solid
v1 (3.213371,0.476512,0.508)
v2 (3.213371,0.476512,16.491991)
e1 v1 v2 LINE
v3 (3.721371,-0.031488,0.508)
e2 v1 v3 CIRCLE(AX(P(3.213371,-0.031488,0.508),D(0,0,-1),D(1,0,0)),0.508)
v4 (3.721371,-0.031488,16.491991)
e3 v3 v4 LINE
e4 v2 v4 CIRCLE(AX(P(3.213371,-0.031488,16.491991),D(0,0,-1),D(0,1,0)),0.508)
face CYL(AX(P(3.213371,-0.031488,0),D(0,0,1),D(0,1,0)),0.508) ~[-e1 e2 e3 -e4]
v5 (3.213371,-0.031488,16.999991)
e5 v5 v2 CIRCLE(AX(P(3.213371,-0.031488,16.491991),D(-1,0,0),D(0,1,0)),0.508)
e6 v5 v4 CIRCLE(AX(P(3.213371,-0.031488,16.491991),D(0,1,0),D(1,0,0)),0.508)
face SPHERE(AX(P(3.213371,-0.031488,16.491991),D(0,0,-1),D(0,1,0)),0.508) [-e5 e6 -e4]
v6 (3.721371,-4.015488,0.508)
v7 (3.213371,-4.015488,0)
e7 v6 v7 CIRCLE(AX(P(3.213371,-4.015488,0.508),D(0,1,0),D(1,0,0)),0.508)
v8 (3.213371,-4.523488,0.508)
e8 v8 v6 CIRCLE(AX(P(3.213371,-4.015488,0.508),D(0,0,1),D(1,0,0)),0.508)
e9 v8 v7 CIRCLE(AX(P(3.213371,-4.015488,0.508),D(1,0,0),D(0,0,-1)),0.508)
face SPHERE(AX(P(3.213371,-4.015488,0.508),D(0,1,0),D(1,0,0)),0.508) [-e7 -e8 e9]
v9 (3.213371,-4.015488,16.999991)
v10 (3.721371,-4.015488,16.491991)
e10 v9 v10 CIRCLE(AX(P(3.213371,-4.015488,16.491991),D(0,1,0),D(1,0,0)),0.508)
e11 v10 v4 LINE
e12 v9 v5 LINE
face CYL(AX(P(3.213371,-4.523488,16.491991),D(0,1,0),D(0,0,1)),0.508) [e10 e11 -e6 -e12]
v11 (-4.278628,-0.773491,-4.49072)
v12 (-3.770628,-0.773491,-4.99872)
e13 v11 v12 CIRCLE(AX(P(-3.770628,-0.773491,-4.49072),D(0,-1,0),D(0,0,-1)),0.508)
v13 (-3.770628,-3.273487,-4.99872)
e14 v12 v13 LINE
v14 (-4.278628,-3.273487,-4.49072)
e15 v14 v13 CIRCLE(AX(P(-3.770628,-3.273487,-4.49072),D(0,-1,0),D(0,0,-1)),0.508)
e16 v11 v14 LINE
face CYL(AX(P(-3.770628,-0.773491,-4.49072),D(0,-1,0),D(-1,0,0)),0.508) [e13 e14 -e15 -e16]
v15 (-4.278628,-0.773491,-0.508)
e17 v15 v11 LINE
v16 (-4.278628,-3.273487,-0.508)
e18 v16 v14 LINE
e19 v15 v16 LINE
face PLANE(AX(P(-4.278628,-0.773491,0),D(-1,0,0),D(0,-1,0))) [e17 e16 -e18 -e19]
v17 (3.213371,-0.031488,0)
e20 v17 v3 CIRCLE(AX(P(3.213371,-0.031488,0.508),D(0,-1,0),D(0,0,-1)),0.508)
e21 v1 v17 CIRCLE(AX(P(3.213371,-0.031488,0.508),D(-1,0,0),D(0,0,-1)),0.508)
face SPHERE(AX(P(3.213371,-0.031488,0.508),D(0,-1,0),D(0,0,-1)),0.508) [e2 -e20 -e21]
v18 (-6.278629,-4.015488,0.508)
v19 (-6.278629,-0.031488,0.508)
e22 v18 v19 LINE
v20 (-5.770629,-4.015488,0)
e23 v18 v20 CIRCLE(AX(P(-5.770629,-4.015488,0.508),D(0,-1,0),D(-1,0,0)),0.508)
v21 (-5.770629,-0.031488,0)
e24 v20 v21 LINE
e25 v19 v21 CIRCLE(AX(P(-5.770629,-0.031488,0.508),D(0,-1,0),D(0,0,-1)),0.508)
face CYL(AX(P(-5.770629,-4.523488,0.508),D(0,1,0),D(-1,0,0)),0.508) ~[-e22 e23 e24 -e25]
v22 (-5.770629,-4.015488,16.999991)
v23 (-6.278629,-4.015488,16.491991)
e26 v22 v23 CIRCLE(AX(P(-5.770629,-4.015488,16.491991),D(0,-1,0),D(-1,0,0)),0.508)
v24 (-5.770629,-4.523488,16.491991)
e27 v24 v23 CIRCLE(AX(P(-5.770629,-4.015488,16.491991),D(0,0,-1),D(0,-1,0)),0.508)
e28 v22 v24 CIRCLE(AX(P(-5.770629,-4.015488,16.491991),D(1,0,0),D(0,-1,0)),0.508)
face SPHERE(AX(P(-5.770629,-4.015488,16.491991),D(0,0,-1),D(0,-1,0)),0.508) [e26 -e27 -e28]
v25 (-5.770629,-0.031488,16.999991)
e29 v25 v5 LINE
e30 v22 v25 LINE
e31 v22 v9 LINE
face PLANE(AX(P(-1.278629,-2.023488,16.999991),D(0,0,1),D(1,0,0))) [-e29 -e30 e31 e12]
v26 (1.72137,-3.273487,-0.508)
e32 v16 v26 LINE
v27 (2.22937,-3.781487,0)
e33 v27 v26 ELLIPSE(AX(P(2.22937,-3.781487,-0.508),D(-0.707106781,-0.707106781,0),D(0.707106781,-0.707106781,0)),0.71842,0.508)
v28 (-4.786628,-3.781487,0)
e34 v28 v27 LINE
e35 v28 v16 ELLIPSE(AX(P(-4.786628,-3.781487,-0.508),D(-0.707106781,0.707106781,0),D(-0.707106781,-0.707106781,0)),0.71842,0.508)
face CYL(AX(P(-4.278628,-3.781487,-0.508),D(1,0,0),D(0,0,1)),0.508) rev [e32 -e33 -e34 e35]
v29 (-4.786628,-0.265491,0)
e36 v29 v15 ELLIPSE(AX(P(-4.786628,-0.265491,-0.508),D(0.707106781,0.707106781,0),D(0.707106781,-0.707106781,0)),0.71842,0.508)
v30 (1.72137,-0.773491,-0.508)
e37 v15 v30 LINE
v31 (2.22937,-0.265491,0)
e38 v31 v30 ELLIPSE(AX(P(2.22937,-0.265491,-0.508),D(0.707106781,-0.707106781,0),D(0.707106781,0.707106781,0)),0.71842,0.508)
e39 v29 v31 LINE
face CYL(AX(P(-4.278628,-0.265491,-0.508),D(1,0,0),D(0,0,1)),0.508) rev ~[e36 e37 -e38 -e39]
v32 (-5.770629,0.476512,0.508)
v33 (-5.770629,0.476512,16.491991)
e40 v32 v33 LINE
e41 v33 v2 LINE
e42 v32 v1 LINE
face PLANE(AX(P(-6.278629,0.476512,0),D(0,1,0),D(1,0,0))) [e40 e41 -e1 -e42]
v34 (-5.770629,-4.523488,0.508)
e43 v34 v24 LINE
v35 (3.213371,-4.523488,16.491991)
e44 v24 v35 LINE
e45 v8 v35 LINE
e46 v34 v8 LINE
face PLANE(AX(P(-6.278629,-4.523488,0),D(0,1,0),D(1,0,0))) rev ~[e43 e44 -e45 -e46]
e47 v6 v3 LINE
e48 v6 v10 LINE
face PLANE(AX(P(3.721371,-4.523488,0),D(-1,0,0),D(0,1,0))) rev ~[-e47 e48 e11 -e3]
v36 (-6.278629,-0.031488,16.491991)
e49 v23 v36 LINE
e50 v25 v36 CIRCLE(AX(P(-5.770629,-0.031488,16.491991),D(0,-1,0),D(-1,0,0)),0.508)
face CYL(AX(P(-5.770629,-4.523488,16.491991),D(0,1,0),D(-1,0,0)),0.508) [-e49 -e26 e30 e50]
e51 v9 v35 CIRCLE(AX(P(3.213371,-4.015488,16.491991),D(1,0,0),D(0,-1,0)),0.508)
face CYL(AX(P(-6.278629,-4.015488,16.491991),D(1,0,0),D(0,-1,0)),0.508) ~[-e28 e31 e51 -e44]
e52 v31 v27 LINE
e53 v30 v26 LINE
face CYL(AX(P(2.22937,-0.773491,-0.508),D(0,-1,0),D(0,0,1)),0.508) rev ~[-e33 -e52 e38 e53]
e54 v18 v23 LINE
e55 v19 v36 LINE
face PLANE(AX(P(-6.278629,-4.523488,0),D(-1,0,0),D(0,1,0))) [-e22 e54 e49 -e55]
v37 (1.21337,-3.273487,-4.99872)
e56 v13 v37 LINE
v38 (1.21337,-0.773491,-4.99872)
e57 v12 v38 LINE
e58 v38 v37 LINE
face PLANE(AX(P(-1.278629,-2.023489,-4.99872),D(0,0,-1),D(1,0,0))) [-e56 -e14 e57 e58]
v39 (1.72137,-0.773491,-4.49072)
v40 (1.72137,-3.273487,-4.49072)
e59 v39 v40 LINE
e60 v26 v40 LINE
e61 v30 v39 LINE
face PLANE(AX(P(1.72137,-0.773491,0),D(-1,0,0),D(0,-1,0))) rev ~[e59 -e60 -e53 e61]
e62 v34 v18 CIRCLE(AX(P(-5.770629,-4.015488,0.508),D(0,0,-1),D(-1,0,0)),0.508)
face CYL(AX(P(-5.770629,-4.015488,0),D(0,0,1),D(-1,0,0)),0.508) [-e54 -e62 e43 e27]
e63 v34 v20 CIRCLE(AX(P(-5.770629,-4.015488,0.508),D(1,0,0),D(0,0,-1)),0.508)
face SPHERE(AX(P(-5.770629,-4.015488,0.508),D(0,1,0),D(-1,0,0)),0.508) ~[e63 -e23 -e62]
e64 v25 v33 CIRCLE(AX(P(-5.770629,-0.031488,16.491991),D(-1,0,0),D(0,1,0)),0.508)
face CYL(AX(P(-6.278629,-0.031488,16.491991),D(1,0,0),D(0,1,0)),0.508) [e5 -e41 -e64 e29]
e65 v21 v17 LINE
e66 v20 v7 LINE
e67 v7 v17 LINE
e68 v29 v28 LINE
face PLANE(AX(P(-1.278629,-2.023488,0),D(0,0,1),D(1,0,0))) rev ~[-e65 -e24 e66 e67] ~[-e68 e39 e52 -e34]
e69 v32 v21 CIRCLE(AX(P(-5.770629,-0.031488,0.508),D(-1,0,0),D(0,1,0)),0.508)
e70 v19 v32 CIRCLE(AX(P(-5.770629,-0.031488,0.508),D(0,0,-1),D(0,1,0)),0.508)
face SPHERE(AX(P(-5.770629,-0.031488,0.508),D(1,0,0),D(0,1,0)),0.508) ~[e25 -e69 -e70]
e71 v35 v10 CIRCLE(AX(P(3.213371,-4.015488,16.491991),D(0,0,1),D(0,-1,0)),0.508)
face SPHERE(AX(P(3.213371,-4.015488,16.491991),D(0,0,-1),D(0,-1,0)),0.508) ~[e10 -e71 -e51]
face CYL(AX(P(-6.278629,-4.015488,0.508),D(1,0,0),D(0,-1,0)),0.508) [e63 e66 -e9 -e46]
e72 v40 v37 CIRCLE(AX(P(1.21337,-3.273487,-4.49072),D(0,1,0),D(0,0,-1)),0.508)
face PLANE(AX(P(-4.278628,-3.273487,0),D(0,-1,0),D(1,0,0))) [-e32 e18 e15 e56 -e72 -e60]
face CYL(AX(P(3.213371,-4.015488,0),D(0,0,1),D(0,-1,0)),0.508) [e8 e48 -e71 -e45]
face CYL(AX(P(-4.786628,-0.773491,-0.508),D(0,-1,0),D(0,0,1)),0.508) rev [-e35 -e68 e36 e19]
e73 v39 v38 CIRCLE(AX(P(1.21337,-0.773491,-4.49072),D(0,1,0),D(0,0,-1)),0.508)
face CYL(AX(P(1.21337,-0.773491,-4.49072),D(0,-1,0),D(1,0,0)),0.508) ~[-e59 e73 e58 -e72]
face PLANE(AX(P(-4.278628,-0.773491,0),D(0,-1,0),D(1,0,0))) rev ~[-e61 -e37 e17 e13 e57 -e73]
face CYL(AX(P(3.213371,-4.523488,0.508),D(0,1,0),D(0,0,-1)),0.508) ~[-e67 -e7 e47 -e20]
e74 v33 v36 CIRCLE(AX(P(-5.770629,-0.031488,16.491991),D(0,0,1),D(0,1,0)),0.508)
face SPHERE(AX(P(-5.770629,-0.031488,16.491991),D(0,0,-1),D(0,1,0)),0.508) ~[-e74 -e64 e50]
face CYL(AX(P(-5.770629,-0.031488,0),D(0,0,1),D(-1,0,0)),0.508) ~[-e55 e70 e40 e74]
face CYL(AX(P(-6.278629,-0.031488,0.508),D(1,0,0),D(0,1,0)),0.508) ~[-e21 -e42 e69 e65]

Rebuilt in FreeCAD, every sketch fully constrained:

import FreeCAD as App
import Part
import Sketcher
Q = App.Units.Quantity


def edges_at(feature, points):
    """Names of the edges that pass closest to the given points."""
    edges = feature.Shape.Edges
    near = lambda p: min(range(len(edges)), key=lambda i: edges[i].distToShape(Part.Vertex(*p))[0])
    return sorted({f"Edge{near(p) + 1}" for p in points})


def add_polygon(sketch, points):
    """Adds a closed chain of lines whose ends are joined by coincident constraints."""
    first, n = sketch.GeometryCount, len(points)
    for a, b in zip(points, points[1:] + points[:1]):
        sketch.addGeometry(Part.LineSegment(App.Vector(*a, 0), App.Vector(*b, 0)), False)
    for i in range(n):
        sketch.addConstraint(Sketcher.Constraint("Coincident", first + i, 2, first + (i + 1) % n, 1))

doc = App.newDocument("Part")
params = doc.addObject("Spreadsheet::Sheet", "Params")
for row, (alias, value) in enumerate([
    ("sketch1_width", "10 mm"),
    ("sketch1_height", "5 mm"),
    ("pad1_length", "16.999991 mm"),
    ("sketch2_width", "5.999998 mm"),
    ("pad2_length", "4.99872 mm"),
    ("fillet_radius", "0.508 mm"),
], start=1):
    params.set(f"A{row}", alias)
    params.set(f"B{row}", "=" + value)
    params.setAlias(f"B{row}", alias)

body = doc.addObject("PartDesign::Body", "Body")

sketch1 = doc.addObject("Sketcher::SketchObject", "Sketch")
body.addObject(sketch1)
sketch1.AttachmentSupport = (doc.XY_Plane, [""])
sketch1.MapMode = "FlatFace"
add_polygon(sketch1, [(-6, 0), (-6, -5), (4, -5), (4, 0)])
sketch1.addConstraint([
    Sketcher.Constraint("Vertical", 0),
    Sketcher.Constraint("Horizontal", 1),
    Sketcher.Constraint("Vertical", 2),
    Sketcher.Constraint("Horizontal", 3),
    Sketcher.Constraint("DistanceX", 1, 1, 1, 2, Q("10 mm")),
    Sketcher.Constraint("DistanceY", 0, 2, 0, 1, Q("5 mm")),
    Sketcher.Constraint("DistanceX", 0, 2, -1, 1, Q("6.278629 mm")),
    Sketcher.Constraint("DistanceY", 0, 2, -1, 1, Q("4.523488 mm")),
])
sketch1.setExpression("Constraints[8]", "Params.sketch1_width")
sketch1.setExpression("Constraints[9]", "Params.sketch1_height")
pad1 = doc.addObject("PartDesign::Pad", "Pad")
body.addObject(pad1)
pad1.Profile = sketch1
pad1.setExpression("Length", "Params.pad1_length")

sketch2 = doc.addObject("Sketcher::SketchObject", "Sketch001")
body.addObject(sketch2)
sketch2.AttachmentSupport = (doc.XY_Plane, [""])
sketch2.MapMode = "FlatFace"
add_polygon(sketch2, [(-4.3, -3.3), (-4.3, -0.8), (1.7, -0.8), (1.7, -3.3)])
sketch2.addConstraint([
    Sketcher.Constraint("Vertical", 0),
    Sketcher.Constraint("Horizontal", 1),
    Sketcher.Constraint("Vertical", 2),
    Sketcher.Constraint("Horizontal", 3),
    Sketcher.Constraint("DistanceX", 1, 1, 1, 2, Q("5.999998 mm")),
    Sketcher.Constraint("DistanceY", 0, 1, 0, 2, Q("2.499995 mm")),
    Sketcher.Constraint("DistanceX", 0, 2, -1, 1, Q("4.278628 mm")),
    Sketcher.Constraint("DistanceY", 0, 2, -1, 1, Q("0.773491 mm")),
])
sketch2.setExpression("Constraints[8]", "Params.sketch2_width")
pad2 = doc.addObject("PartDesign::Pad", "Pad001")
body.addObject(pad2)
pad2.Profile = sketch2
pad2.setExpression("Length", "Params.pad2_length")
pad2.Reversed = True
doc.recompute()

fillet = doc.addObject("PartDesign::Fillet", "Fillet")
body.addObject(fillet)
fillet.Base = (pad2, edges_at(pad2, [
    (-1.279, -0.773, 0),
    (1.721, -2.023, 0),
    (-4.279, -2.023, 0),
    (-1.279, -3.273, 0),
    (-4.279, -2.023, -4.999),
    (1.721, -2.023, -4.999),
    (3.721, -2.023, 0),
    (-1.279, 0.477, 0),
    (3.721, 0.477, 8.5),
    (-6.279, 0.477, 8.5),
    (-6.279, -2.023, 0),
    (-6.279, -4.523, 8.5),
    (3.721, -4.523, 8.5),
    (-1.279, -4.523, 0),
    (-1.279, -4.523, 17),
    (-1.279, 0.477, 17),
    (-6.279, -2.023, 17),
    (3.721, -2.023, 17),
]))
fillet.setExpression("Radius", "Params.fillet_radius")

doc.recompute()
